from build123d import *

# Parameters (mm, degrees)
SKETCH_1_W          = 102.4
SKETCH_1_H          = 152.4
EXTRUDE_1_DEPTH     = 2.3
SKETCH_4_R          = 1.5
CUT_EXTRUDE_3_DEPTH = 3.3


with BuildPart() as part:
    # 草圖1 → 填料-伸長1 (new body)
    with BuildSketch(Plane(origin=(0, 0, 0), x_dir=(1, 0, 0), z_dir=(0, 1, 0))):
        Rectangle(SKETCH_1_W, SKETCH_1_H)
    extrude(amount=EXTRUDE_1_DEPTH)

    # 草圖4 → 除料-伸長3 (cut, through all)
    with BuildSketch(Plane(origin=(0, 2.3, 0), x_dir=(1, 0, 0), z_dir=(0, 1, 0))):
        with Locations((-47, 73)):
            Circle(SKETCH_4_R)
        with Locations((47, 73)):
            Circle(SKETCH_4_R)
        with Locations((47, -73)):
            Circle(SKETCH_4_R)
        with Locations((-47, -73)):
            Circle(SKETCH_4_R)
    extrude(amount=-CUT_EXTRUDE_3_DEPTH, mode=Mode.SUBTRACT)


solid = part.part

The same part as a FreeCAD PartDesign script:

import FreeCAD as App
import Part
import Sketcher
Q = App.Units.Quantity


def add_polygon(sketch, points):
    """Adds a closed chain of lines whose ends are joined by coincident constraints."""
    first, n = sketch.GeometryCount, len(points)
    for a, b in zip(points, points[1:] + points[:1]):
        sketch.addGeometry(Part.LineSegment(App.Vector(*a, 0), App.Vector(*b, 0)), False)
    for i in range(n):
        sketch.addConstraint(Sketcher.Constraint("Coincident", first + i, 2, first + (i + 1) % n, 1))

doc = App.newDocument("Part")
params = doc.addObject("Spreadsheet::Sheet", "Params")
for row, (alias, value) in enumerate([
    ("sketch1_width", "102.4 mm"),
    ("sketch1_height", "152.4 mm"),
    ("pad1_length", "2.3 mm"),
    ("sketch2_diameter", "3 mm"),
], start=1):
    params.set(f"A{row}", alias)
    params.set(f"B{row}", "=" + value)
    params.setAlias(f"B{row}", alias)

body = doc.addObject("PartDesign::Body", "Body")

sketch1 = body.newObject("Sketcher::SketchObject", "Sketch")
sketch1.AttachmentSupport = (doc.getObject("XZ_Plane"), [""])
sketch1.MapMode = "FlatFace"
add_polygon(sketch1, [(-51.2, -76.2), (-51.2, 76.2), (51.2, 76.2), (51.2, -76.2)])
sketch1.addConstraint(Sketcher.Constraint("Vertical", 0))
sketch1.addConstraint(Sketcher.Constraint("Horizontal", 1))
sketch1.addConstraint(Sketcher.Constraint("Vertical", 2))
sketch1.addConstraint(Sketcher.Constraint("Horizontal", 3))
sketch1.addConstraint(Sketcher.Constraint("Symmetric", 0, 2, 2, 2, -1, 1))
sketch1.addConstraint(Sketcher.Constraint("DistanceX", 1, 1, 1, 2, Q("102.4 mm")))
sketch1.addConstraint(Sketcher.Constraint("DistanceY", 0, 1, 0, 2, Q("152.4 mm")))
sketch1.setExpression("Constraints[9]", "Params.sketch1_width")
sketch1.setExpression("Constraints[10]", "Params.sketch1_height")
pad1 = body.newObject("PartDesign::Pad", "Pad")
pad1.Profile = sketch1
pad1.setExpression("Length", "Params.pad1_length")
pad1.Reversed = True

sketch2 = body.newObject("Sketcher::SketchObject", "Sketch001")
sketch2.AttachmentSupport = (doc.getObject("XZ_Plane"), [""])
sketch2.MapMode = "FlatFace"
sketch2.AttachmentOffset = App.Placement(App.Vector(0, 0, -2.3), App.Rotation())
sketch2.addGeometry(Part.Circle(App.Vector(-47, -73, 0), App.Vector(0, 0, 1), 1.5), False)
sketch2.addGeometry(Part.Circle(App.Vector(47, -73, 0), App.Vector(0, 0, 1), 1.5), False)
sketch2.addGeometry(Part.Circle(App.Vector(47, 73, 0), App.Vector(0, 0, 1), 1.5), False)
sketch2.addGeometry(Part.Circle(App.Vector(-47, 73, 0), App.Vector(0, 0, 1), 1.5), False)
sketch2.addConstraint(Sketcher.Constraint("Equal", 0, 1))
sketch2.addConstraint(Sketcher.Constraint("Equal", 1, 2))
sketch2.addConstraint(Sketcher.Constraint("Equal", 2, 3))
sketch2.addConstraint(Sketcher.Constraint("Symmetric", 0, 3, 2, 3, -1, 1))
sketch2.addConstraint(Sketcher.Constraint("Symmetric", 1, 3, 3, 3, -1, 1))
sketch2.addConstraint(Sketcher.Constraint("Symmetric", 0, 3, 1, 3, -2))
sketch2.addConstraint(Sketcher.Constraint("Diameter", 0, Q("3 mm")))
sketch2.addConstraint(Sketcher.Constraint("DistanceX", 0, 3, -1, 1, Q("47 mm")))
sketch2.addConstraint(Sketcher.Constraint("DistanceY", 0, 3, -1, 1, Q("73 mm")))
sketch2.setExpression("Constraints[6]", "Params.sketch2_diameter")
pocket1 = body.newObject("PartDesign::Pocket", "Pocket")
pocket1.Profile = sketch2
pocket1.Type = "ThroughAll"
pocket1.Reversed = True

doc.recompute()
